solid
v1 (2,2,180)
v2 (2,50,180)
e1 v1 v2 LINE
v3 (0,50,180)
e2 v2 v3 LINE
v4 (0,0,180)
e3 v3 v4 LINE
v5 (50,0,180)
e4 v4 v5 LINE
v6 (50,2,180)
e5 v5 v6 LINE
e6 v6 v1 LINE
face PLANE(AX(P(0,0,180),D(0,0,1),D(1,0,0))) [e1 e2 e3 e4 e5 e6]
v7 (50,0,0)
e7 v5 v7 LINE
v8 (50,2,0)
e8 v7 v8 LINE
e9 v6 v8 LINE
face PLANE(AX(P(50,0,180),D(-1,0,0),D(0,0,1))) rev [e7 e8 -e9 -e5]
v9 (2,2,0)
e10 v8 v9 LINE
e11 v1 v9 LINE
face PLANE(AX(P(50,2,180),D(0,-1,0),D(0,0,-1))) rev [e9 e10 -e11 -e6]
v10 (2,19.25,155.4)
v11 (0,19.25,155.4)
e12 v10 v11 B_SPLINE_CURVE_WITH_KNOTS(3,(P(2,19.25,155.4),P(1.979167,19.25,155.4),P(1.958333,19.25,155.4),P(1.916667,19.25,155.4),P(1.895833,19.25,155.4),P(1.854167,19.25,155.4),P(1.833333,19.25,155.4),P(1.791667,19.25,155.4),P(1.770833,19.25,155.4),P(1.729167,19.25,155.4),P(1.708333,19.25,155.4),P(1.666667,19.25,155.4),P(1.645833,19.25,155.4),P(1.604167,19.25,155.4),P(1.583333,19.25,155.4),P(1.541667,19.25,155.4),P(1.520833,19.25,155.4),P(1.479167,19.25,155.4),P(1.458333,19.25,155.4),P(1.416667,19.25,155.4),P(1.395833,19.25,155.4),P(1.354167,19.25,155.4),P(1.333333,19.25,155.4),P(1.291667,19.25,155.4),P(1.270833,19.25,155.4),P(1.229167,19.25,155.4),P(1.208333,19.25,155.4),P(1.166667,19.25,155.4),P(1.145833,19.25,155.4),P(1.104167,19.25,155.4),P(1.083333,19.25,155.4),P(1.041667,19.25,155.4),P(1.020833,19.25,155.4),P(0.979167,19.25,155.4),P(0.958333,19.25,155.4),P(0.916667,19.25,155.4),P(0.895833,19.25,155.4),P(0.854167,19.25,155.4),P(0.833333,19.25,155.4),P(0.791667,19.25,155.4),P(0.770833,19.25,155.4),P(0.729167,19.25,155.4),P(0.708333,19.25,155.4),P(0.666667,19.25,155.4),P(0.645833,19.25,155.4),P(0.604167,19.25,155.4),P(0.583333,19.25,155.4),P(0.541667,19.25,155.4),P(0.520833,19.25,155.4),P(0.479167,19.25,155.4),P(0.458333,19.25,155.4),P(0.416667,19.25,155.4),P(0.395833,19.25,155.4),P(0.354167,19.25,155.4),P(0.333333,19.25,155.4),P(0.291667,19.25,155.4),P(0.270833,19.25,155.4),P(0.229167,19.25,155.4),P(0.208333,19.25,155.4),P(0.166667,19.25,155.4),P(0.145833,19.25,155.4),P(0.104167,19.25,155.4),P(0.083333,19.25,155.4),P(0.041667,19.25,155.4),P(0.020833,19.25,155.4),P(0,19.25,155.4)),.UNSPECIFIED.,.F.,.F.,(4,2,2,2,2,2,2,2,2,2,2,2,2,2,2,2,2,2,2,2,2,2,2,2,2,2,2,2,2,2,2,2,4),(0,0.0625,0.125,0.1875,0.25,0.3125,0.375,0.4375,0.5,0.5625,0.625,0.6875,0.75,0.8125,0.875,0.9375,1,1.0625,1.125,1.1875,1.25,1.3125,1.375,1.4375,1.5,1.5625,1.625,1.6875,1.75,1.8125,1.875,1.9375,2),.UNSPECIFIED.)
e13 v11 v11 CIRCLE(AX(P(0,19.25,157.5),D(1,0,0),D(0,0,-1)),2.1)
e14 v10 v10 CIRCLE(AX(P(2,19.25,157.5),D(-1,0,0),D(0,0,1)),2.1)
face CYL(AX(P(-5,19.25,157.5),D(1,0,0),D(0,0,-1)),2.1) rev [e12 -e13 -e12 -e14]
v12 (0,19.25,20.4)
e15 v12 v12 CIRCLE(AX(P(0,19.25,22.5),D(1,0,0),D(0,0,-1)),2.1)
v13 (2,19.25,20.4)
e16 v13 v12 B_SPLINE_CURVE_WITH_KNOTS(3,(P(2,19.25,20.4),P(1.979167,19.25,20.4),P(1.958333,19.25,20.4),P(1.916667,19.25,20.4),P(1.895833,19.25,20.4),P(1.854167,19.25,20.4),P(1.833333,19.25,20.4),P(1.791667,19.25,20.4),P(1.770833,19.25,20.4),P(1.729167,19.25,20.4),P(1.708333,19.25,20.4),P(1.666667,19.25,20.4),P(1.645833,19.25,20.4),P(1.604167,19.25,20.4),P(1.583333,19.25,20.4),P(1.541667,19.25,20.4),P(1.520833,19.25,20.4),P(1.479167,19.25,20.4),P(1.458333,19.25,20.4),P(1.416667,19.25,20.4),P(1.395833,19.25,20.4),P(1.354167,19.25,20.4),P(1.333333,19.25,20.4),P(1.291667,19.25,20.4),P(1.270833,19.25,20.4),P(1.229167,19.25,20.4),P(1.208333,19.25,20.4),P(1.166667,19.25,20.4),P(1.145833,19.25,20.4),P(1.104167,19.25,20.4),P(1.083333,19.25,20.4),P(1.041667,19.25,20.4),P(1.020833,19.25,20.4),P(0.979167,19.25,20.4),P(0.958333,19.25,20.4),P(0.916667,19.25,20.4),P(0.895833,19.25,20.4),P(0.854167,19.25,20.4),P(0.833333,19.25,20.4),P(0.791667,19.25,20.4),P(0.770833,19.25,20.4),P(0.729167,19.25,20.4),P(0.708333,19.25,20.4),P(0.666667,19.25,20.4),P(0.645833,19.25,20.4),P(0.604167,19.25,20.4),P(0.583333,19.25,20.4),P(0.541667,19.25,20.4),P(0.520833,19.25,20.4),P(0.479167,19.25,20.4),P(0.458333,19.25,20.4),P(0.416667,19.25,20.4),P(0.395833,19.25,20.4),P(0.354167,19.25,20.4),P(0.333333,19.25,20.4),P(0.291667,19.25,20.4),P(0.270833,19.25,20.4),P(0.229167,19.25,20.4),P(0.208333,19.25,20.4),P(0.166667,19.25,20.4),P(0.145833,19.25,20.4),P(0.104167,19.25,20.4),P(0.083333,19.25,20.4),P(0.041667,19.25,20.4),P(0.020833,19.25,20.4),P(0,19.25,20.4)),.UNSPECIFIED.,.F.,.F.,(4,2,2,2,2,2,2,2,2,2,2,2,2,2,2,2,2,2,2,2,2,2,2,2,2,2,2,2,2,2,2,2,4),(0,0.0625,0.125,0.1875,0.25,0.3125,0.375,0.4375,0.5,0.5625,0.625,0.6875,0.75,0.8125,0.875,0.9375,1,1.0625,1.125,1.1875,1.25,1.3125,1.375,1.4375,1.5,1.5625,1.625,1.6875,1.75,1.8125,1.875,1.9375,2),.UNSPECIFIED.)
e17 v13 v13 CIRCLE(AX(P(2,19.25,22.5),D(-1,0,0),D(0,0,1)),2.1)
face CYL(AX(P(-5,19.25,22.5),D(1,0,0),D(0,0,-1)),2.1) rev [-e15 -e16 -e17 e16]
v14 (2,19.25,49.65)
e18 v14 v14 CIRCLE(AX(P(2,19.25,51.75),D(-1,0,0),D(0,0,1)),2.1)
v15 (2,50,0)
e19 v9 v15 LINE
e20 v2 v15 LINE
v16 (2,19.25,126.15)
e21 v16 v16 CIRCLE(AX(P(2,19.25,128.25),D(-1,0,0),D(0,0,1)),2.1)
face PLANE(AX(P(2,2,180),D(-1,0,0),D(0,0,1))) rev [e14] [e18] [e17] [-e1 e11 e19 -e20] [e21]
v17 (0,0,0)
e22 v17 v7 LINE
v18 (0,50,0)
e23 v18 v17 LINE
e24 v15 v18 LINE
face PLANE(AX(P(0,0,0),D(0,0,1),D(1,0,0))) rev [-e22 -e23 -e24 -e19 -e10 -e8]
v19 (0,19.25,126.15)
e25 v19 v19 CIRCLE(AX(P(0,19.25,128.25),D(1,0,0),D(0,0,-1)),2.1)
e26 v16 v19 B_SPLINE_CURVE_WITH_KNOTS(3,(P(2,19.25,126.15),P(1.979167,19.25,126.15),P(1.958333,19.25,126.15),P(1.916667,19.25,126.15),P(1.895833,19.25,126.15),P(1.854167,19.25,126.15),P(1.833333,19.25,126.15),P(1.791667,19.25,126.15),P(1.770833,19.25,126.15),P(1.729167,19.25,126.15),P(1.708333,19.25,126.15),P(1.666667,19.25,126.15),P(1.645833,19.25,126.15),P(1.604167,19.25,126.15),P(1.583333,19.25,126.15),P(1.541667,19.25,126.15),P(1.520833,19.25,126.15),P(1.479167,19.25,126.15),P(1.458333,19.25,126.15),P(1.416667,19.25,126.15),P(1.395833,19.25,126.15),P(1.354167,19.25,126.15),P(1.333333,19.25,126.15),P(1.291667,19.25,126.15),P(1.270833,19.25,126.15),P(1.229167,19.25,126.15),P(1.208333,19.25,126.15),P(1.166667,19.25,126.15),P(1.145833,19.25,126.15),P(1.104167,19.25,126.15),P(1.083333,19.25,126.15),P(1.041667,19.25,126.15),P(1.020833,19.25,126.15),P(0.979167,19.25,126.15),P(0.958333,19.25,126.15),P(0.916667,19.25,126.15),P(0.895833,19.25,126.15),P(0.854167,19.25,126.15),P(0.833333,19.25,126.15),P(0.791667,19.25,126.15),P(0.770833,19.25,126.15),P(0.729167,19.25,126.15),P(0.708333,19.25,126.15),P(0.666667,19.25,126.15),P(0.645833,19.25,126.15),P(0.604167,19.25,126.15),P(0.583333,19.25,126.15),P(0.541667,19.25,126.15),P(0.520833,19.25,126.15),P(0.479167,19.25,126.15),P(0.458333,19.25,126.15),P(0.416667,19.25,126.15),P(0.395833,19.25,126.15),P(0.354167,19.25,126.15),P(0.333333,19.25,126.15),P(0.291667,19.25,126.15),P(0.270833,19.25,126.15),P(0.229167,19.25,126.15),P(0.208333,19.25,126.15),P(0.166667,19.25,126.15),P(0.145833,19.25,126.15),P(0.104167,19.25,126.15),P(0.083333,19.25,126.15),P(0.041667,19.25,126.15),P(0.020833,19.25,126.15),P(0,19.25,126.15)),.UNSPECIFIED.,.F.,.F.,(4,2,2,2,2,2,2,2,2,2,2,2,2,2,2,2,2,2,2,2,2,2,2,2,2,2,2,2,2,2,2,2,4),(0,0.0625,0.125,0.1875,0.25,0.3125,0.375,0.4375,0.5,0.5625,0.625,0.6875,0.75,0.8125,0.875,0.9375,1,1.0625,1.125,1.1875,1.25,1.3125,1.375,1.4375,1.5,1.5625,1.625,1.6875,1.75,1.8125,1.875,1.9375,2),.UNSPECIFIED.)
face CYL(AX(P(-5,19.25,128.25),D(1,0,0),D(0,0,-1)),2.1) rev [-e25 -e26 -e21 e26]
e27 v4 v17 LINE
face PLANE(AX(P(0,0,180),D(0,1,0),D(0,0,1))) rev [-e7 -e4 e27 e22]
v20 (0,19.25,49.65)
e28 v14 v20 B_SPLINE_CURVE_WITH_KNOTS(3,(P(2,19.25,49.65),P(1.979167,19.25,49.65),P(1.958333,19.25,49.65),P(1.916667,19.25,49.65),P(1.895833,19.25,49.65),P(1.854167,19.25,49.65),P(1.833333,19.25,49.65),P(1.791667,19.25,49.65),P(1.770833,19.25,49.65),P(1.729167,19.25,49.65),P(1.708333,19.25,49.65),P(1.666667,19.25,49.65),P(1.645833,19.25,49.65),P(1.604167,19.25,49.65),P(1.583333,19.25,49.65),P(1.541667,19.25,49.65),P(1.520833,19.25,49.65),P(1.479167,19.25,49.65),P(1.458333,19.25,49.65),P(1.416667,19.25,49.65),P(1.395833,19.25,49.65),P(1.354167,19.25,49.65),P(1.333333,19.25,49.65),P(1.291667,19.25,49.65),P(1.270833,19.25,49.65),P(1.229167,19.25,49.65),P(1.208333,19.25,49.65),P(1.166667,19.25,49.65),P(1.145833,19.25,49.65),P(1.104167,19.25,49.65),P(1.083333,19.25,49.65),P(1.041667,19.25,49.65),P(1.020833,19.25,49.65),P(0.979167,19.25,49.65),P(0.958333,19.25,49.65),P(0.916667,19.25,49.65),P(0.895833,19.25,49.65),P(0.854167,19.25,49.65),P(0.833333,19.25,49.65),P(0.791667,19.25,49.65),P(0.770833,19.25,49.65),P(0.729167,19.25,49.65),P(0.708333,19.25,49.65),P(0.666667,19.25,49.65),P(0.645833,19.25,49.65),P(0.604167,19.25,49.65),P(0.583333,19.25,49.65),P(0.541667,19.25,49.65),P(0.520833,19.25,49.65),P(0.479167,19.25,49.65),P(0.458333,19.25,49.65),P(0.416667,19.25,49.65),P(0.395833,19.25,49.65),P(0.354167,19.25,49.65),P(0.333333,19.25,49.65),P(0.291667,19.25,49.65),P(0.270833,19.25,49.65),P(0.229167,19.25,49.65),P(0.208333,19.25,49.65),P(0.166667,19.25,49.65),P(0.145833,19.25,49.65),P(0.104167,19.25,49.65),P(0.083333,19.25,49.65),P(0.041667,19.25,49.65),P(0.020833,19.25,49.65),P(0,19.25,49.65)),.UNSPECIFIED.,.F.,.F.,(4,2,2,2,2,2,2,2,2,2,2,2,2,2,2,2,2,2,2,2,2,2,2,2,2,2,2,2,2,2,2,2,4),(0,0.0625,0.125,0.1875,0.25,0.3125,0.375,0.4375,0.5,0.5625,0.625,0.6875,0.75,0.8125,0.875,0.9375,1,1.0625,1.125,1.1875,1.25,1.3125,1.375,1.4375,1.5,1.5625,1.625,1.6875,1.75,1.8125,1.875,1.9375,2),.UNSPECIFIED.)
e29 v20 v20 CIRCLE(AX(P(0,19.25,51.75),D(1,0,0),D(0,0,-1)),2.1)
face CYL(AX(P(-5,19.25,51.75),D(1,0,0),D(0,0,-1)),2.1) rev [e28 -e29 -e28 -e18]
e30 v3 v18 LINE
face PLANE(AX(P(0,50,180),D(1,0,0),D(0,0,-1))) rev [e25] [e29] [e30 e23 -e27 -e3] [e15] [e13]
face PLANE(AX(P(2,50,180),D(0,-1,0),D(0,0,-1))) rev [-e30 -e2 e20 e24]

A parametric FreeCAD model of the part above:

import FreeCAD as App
import Part
import Sketcher
Q = App.Units.Quantity

doc = App.newDocument("Part")
body = doc.addObject("PartDesign::Body", "Body")

sketch1 = doc.addObject("Sketcher::SketchObject", "Sketch")
body.addObject(sketch1)
sketch1.AttachmentSupport = (doc.XY_Plane, [""])
sketch1.MapMode = "FlatFace"
sketch1.addGeometry(Part.LineSegment(App.Vector(0, 0, 0), App.Vector(50, 0, 0)), False)
sketch1.addGeometry(Part.LineSegment(App.Vector(50, 0, 0), App.Vector(50, 2, 0)), False)
sketch1.addGeometry(Part.LineSegment(App.Vector(50, 2, 0), App.Vector(2, 2, 0)), False)
sketch1.addGeometry(Part.LineSegment(App.Vector(2, 2, 0), App.Vector(2, 50, 0)), False)
sketch1.addGeometry(Part.LineSegment(App.Vector(2, 50, 0), App.Vector(0, 50, 0)), False)
sketch1.addGeometry(Part.LineSegment(App.Vector(0, 50, 0), App.Vector(0, 0, 0)), False)
sketch1.addConstraint(Sketcher.Constraint("Coincident", 0, 2, 1, 1))
sketch1.addConstraint(Sketcher.Constraint("Coincident", 1, 2, 2, 1))
sketch1.addConstraint(Sketcher.Constraint("Coincident", 2, 2, 3, 1))
sketch1.addConstraint(Sketcher.Constraint("Coincident", 3, 2, 4, 1))
sketch1.addConstraint(Sketcher.Constraint("Coincident", 4, 2, 5, 1))
sketch1.addConstraint(Sketcher.Constraint("Coincident", 5, 2, 0, 1))
sketch1.addConstraint(Sketcher.Constraint("Horizontal", 0))
sketch1.addConstraint(Sketcher.Constraint("Vertical", 1))
sketch1.addConstraint(Sketcher.Constraint("Horizontal", 2))
sketch1.addConstraint(Sketcher.Constraint("Vertical", 3))
sketch1.addConstraint(Sketcher.Constraint("Horizontal", 4))
sketch1.addConstraint(Sketcher.Constraint("Vertical", 5))
sketch1.addConstraint(Sketcher.Constraint("Coincident", 5, 2, -1, 1))
sketch1.addConstraint(Sketcher.Constraint("Equal", 4, 1))
sketch1.addConstraint(Sketcher.Constraint("Equal", 2, 3))
sketch1.addConstraint(Sketcher.Constraint("DistanceX", 0, 1, 0, 2, Q("50 mm")))
sketch1.addConstraint(Sketcher.Constraint("DistanceX", 2, 2, 2, 1, Q("48 mm")))
pad1 = doc.addObject("PartDesign::Pad", "Pad")
body.addObject(pad1)
pad1.Profile = sketch1
pad1.Length = 180

sketch2 = doc.addObject("Sketcher::SketchObject", "Sketch001")
body.addObject(sketch2)
sketch2.AttachmentSupport = (doc.YZ_Plane, [""])
sketch2.MapMode = "FlatFace"
sketch2.addGeometry(Part.Circle(App.Vector(19.25, 22.5, 0), App.Vector(0, 0, 1), 2.1), False)
sketch2.addGeometry(Part.Circle(App.Vector(19.25, 51.75, 0), App.Vector(0, 0, 1), 2.1), False)
sketch2.addGeometry(Part.Circle(App.Vector(19.25, 128.25, 0), App.Vector(0, 0, 1), 2.1), False)
sketch2.addGeometry(Part.Circle(App.Vector(19.25, 157.5, 0), App.Vector(0, 0, 1), 2.1), False)
sketch2.addConstraint(Sketcher.Constraint("Equal", 0, 1))
sketch2.addConstraint(Sketcher.Constraint("Equal", 1, 2))
sketch2.addConstraint(Sketcher.Constraint("Equal", 2, 3))
sketch2.addConstraint(Sketcher.Constraint("Vertical", 0, 3, 1, 3))
sketch2.addConstraint(Sketcher.Constraint("Vertical", 1, 3, 2, 3))
sketch2.addConstraint(Sketcher.Constraint("Vertical", 2, 3, 3, 3))
sketch2.addConstraint(Sketcher.Constraint("Diameter", 0, Q("4.2 mm")))
sketch2.addConstraint(Sketcher.Constraint("DistanceY", 0, 3, 3, 3, Q("135 mm")))
sketch2.addConstraint(Sketcher.Constraint("DistanceY", -1, 1, 0, 3, Q("22.5 mm")))
sketch2.addConstraint(Sketcher.Constraint("DistanceY", 1, 3, 2, 3, Q("76.5 mm")))
sketch2.addConstraint(Sketcher.Constraint("DistanceX", -1, 1, 0, 3, Q("19.25 mm")))
sketch2.addConstraint(Sketcher.Constraint("DistanceY", -1, 1, 1, 3, Q("51.75 mm")))
pocket1 = doc.addObject("PartDesign::Pocket", "Pocket")
body.addObject(pocket1)
pocket1.Profile = sketch2
pocket1.Length = 10
pocket1.Midplane = True

doc.recompute()
